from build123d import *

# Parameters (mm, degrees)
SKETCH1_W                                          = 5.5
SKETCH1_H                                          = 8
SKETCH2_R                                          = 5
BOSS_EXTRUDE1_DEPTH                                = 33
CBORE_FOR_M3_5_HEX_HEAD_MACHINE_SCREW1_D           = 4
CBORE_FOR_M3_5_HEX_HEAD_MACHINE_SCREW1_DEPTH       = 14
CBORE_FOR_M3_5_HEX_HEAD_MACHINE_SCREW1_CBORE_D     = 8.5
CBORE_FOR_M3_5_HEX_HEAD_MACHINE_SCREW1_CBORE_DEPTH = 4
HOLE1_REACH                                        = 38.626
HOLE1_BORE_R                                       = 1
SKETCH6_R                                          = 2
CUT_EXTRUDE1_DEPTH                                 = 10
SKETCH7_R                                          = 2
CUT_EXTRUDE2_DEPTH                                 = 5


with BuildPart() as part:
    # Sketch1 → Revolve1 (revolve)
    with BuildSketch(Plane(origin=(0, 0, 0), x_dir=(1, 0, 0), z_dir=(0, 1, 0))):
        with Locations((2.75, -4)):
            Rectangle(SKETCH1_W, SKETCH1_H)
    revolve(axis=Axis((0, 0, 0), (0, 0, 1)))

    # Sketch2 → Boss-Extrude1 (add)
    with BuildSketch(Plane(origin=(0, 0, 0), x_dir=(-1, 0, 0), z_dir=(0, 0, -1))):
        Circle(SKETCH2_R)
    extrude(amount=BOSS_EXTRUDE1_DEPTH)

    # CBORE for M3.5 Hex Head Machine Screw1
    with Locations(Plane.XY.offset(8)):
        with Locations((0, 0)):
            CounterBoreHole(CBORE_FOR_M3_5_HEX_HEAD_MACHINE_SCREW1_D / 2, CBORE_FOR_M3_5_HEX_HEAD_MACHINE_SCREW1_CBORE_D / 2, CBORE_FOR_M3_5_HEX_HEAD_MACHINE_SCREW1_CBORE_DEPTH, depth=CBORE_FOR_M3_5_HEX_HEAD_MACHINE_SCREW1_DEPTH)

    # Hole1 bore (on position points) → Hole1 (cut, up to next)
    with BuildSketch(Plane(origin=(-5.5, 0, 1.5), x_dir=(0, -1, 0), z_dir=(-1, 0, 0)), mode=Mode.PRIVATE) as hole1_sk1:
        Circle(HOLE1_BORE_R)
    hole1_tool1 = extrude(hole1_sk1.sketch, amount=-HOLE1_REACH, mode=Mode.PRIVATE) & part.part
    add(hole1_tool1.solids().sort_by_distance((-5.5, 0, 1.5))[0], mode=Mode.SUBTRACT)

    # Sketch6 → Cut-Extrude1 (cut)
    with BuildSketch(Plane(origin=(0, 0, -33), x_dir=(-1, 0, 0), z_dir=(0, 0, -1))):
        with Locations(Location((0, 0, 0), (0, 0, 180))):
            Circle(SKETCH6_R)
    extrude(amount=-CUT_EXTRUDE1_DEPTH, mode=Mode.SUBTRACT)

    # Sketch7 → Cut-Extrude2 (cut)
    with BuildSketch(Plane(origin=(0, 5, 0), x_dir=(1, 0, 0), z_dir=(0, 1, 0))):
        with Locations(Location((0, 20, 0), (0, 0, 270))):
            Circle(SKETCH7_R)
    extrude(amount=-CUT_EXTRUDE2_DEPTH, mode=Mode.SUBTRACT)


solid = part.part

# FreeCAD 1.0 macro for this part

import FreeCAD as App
import Part
import Sketcher

V = App.Vector


def add_polygon(sketch, points):
    """Adds a closed chain of lines whose ends are joined by coincident constraints."""
    first, n = sketch.GeometryCount, len(points)
    for a, b in zip(points, points[1:] + points[:1]):
        sketch.addGeometry(Part.LineSegment(App.Vector(*a, 0), App.Vector(*b, 0)), False)
    for i in range(n):
        sketch.addConstraint(Sketcher.Constraint("Coincident", first + i, 2, first + (i + 1) % n, 1))

doc = App.newDocument("Part")
body = doc.addObject("PartDesign::Body", "Body")

# Sketch on XZ plane
sketch1 = body.newObject("Sketcher::SketchObject", "Sketch")
sketch1.AttachmentSupport = (doc.getObject("XZ_Plane"), [""])
sketch1.MapMode = "FlatFace"
add_polygon(sketch1, [(0, 0), (0, 8), (5.5, 8), (5.5, 0)])  # lines 0-3
sketch1.addConstraint([
    Sketcher.Constraint("Vertical", 0),
    Sketcher.Constraint("Horizontal", 1),
    Sketcher.Constraint("Vertical", 2),
    Sketcher.Constraint("Horizontal", 3),
    Sketcher.Constraint("Coincident", 3, 2, -1, 1),
    Sketcher.Constraint("DistanceY", 0, 1, 0, 2, 8.0),
    Sketcher.Constraint("DistanceX", 1, 1, 1, 2, 5.5),
])
revolution = body.newObject("PartDesign::Revolution", "Revolution")
revolution.Profile = sketch1
revolution.ReferenceAxis = (sketch1, ["V_Axis"])
revolution.Angle = 360

# Sketch on XY plane
sketch2 = body.newObject("Sketcher::SketchObject", "Sketch001")
sketch2.AttachmentSupport = (doc.getObject("XY_Plane"), [""])
sketch2.MapMode = "FlatFace"
sketch2.addGeometry(Part.Circle(V(0, 0, 0), V(0, 0, 1), 5), False)
sketch2.addConstraint([
    Sketcher.Constraint("Coincident", 0, 3, -1, 1),
    Sketcher.Constraint("Diameter", 0, 10.0),
])
pad1 = body.newObject("PartDesign::Pad", "Pad")
pad1.Profile = sketch2
pad1.Length = 33
pad1.Reversed = True

# Sketch on XY plane
sketch3 = body.newObject("Sketcher::SketchObject", "Sketch002")
sketch3.AttachmentSupport = (doc.getObject("XY_Plane"), [""])
sketch3.MapMode = "FlatFace"
sketch3.AttachmentOffset = App.Placement(V(0, 0, 8), App.Rotation())
sketch3.addGeometry(Part.Circle(V(0, 0, 0), V(0, 0, 1), 2), False)
sketch3.addConstraint([
    Sketcher.Constraint("Coincident", 0, 3, -1, 1),
    Sketcher.Constraint("Diameter", 0, 4.0),
])
doc.recompute()
hole = body.newObject("PartDesign::Hole", "Hole")
hole.Profile = sketch3
hole.ThreadType = "None"
hole.Diameter = 4
hole.DepthType = "Dimension"
hole.Depth = 14
hole.DrillPoint = "Flat"
hole.HoleCutType = "Counterbore"
hole.HoleCutDiameter = 8.5
hole.HoleCutDepth = 4

# Sketch on YZ plane
sketch4 = body.newObject("Sketcher::SketchObject", "Sketch003")
sketch4.AttachmentSupport = (doc.getObject("YZ_Plane"), [""])
sketch4.MapMode = "FlatFace"
sketch4.AttachmentOffset = App.Placement(V(0, 0, -5.5), App.Rotation())
sketch4.addGeometry(Part.Circle(V(0, 1.5, 0), V(0, 0, 1), 1), False)
sketch4.addConstraint([
    Sketcher.Constraint("PointOnObject", 0, 3, -2),
    Sketcher.Constraint("Diameter", 0, 2.0),
    Sketcher.Constraint("DistanceY", -1, 1, 0, 3, 1.5),
])
pocket1 = body.newObject("PartDesign::Pocket", "Pocket")
pocket1.Profile = sketch4
pocket1.Type = "UpToFirst"
pocket1.Reversed = True

# Sketch on XY plane
sketch5 = body.newObject("Sketcher::SketchObject", "Sketch004")
sketch5.AttachmentSupport = (doc.getObject("XY_Plane"), [""])
sketch5.MapMode = "FlatFace"
sketch5.AttachmentOffset = App.Placement(V(0, 0, -33), App.Rotation())
sketch5.addGeometry(Part.Circle(V(0, 0, 0), V(0, 0, 1), 2), False)
sketch5.addConstraint([
    Sketcher.Constraint("Coincident", 0, 3, -1, 1),
    Sketcher.Constraint("Diameter", 0, 4.0),
])
pocket2 = body.newObject("PartDesign::Pocket", "Pocket001")
pocket2.Profile = sketch5
pocket2.Length = 10
pocket2.Reversed = True

# Sketch on XZ plane
sketch6 = body.newObject("Sketcher::SketchObject", "Sketch005")
sketch6.AttachmentSupport = (doc.getObject("XZ_Plane"), [""])
sketch6.MapMode = "FlatFace"
sketch6.AttachmentOffset = App.Placement(V(0, 0, -5), App.Rotation())
sketch6.addGeometry(Part.Circle(V(0, -20, 0), V(0, 0, 1), 2), False)
sketch6.addConstraint([
    Sketcher.Constraint("PointOnObject", 0, 3, -2),
    Sketcher.Constraint("Diameter", 0, 4.0),
    Sketcher.Constraint("DistanceY", 0, 3, -1, 1, 20.0),
])
pocket3 = body.newObject("PartDesign::Pocket", "Pocket002")
pocket3.Profile = sketch6
pocket3.Length = 5
pocket3.Reversed = True

doc.recompute()
